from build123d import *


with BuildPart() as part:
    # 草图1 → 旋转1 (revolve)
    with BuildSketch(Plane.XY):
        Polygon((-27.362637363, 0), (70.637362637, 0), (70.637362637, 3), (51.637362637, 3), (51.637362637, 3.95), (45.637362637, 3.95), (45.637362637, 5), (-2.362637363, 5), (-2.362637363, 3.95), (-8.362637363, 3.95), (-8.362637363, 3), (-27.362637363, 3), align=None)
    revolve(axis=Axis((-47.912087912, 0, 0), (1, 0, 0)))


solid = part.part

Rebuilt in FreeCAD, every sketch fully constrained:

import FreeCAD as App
import Part
import Sketcher
from FreeCAD import Vector

doc = App.newDocument("Part")
body = doc.addObject("PartDesign::Body", "Body")

# Sketch on XY plane
sketch1 = body.newObject("Sketcher::SketchObject", "Sketch")
sketch1.AttachmentSupport = (doc.getObject("XY_Plane"), [""])
sketch1.MapMode = "FlatFace"
sketch1.addGeometry([
    Part.LineSegment(Vector(-27.4, 0, 0), Vector(70.6, 0, 0)),  # 0
    Part.LineSegment(Vector(70.6, 0, 0), Vector(70.6, 3, 0)),  # 1
    Part.LineSegment(Vector(70.6, 3, 0), Vector(51.6, 3, 0)),  # 2
    Part.LineSegment(Vector(51.6, 3, 0), Vector(51.6, 4, 0)),  # 3
    Part.LineSegment(Vector(51.6, 4, 0), Vector(45.6, 4, 0)),  # 4
    Part.LineSegment(Vector(45.6, 4, 0), Vector(45.6, 5, 0)),  # 5
    Part.LineSegment(Vector(45.6, 5, 0), Vector(-2.4, 5, 0)),  # 6
    Part.LineSegment(Vector(-2.4, 5, 0), Vector(-2.4, 4, 0)),  # 7
    Part.LineSegment(Vector(-2.4, 4, 0), Vector(-8.4, 4, 0)),  # 8
    Part.LineSegment(Vector(-8.4, 4, 0), Vector(-8.4, 3, 0)),  # 9
    Part.LineSegment(Vector(-8.4, 3, 0), Vector(-27.4, 3, 0)),  # 10
    Part.LineSegment(Vector(-27.4, 3, 0), Vector(-27.4, 0, 0)),  # 11
], False)
sketch1.addConstraint([
    Sketcher.Constraint("Coincident", 0, 2, 1, 1),
    Sketcher.Constraint("Coincident", 1, 2, 2, 1),
    Sketcher.Constraint("Coincident", 2, 2, 3, 1),
    Sketcher.Constraint("Coincident", 3, 2, 4, 1),
    Sketcher.Constraint("Coincident", 4, 2, 5, 1),
    Sketcher.Constraint("Coincident", 5, 2, 6, 1),
    Sketcher.Constraint("Coincident", 6, 2, 7, 1),
    Sketcher.Constraint("Coincident", 7, 2, 8, 1),
    Sketcher.Constraint("Coincident", 8, 2, 9, 1),
    Sketcher.Constraint("Coincident", 9, 2, 10, 1),
    Sketcher.Constraint("Coincident", 10, 2, 11, 1),
    Sketcher.Constraint("Coincident", 11, 2, 0, 1),
    Sketcher.Constraint("Horizontal", 0),
    Sketcher.Constraint("Vertical", 1),
    Sketcher.Constraint("Horizontal", 2),
    Sketcher.Constraint("Vertical", 3),
    Sketcher.Constraint("Horizontal", 4),
    Sketcher.Constraint("Vertical", 5),
    Sketcher.Constraint("Horizontal", 6),
    Sketcher.Constraint("Vertical", 7),
    Sketcher.Constraint("Horizontal", 8),
    Sketcher.Constraint("Vertical", 9),
    Sketcher.Constraint("Horizontal", 10),
    Sketcher.Constraint("Vertical", 11),
    Sketcher.Constraint("PointOnObject", 0, 2, -1),
    Sketcher.Constraint("Horizontal", 4, 2, 7, 2),
    Sketcher.Constraint("Horizontal", 2, 2, 9, 2),
    Sketcher.Constraint("Equal", 4, 8),
    Sketcher.Constraint("Equal", 2, 10),
    Sketcher.Constraint("DistanceX", 0, 1, 0, 2, 98.0),
    Sketcher.Constraint("DistanceX", 2, 2, 2, 1, 19.0),
    Sketcher.Constraint("DistanceX", 4, 2, 4, 1, 6.0),
    Sketcher.Constraint("DistanceY", 1, 1, 1, 2, 3.0),
    Sketcher.Constraint("DistanceY", -1, 1, 5, 2, 5.0),
    Sketcher.Constraint("DistanceY", 3, 1, 3, 2, 0.95),
    Sketcher.Constraint("DistanceX", -1, 1, 0, 2, 70.637363),
])
revolution = body.newObject("PartDesign::Revolution", "Revolution")
revolution.Profile = sketch1
revolution.ReferenceAxis = (sketch1, ["H_Axis"])
revolution.Angle = 360

doc.recompute()
